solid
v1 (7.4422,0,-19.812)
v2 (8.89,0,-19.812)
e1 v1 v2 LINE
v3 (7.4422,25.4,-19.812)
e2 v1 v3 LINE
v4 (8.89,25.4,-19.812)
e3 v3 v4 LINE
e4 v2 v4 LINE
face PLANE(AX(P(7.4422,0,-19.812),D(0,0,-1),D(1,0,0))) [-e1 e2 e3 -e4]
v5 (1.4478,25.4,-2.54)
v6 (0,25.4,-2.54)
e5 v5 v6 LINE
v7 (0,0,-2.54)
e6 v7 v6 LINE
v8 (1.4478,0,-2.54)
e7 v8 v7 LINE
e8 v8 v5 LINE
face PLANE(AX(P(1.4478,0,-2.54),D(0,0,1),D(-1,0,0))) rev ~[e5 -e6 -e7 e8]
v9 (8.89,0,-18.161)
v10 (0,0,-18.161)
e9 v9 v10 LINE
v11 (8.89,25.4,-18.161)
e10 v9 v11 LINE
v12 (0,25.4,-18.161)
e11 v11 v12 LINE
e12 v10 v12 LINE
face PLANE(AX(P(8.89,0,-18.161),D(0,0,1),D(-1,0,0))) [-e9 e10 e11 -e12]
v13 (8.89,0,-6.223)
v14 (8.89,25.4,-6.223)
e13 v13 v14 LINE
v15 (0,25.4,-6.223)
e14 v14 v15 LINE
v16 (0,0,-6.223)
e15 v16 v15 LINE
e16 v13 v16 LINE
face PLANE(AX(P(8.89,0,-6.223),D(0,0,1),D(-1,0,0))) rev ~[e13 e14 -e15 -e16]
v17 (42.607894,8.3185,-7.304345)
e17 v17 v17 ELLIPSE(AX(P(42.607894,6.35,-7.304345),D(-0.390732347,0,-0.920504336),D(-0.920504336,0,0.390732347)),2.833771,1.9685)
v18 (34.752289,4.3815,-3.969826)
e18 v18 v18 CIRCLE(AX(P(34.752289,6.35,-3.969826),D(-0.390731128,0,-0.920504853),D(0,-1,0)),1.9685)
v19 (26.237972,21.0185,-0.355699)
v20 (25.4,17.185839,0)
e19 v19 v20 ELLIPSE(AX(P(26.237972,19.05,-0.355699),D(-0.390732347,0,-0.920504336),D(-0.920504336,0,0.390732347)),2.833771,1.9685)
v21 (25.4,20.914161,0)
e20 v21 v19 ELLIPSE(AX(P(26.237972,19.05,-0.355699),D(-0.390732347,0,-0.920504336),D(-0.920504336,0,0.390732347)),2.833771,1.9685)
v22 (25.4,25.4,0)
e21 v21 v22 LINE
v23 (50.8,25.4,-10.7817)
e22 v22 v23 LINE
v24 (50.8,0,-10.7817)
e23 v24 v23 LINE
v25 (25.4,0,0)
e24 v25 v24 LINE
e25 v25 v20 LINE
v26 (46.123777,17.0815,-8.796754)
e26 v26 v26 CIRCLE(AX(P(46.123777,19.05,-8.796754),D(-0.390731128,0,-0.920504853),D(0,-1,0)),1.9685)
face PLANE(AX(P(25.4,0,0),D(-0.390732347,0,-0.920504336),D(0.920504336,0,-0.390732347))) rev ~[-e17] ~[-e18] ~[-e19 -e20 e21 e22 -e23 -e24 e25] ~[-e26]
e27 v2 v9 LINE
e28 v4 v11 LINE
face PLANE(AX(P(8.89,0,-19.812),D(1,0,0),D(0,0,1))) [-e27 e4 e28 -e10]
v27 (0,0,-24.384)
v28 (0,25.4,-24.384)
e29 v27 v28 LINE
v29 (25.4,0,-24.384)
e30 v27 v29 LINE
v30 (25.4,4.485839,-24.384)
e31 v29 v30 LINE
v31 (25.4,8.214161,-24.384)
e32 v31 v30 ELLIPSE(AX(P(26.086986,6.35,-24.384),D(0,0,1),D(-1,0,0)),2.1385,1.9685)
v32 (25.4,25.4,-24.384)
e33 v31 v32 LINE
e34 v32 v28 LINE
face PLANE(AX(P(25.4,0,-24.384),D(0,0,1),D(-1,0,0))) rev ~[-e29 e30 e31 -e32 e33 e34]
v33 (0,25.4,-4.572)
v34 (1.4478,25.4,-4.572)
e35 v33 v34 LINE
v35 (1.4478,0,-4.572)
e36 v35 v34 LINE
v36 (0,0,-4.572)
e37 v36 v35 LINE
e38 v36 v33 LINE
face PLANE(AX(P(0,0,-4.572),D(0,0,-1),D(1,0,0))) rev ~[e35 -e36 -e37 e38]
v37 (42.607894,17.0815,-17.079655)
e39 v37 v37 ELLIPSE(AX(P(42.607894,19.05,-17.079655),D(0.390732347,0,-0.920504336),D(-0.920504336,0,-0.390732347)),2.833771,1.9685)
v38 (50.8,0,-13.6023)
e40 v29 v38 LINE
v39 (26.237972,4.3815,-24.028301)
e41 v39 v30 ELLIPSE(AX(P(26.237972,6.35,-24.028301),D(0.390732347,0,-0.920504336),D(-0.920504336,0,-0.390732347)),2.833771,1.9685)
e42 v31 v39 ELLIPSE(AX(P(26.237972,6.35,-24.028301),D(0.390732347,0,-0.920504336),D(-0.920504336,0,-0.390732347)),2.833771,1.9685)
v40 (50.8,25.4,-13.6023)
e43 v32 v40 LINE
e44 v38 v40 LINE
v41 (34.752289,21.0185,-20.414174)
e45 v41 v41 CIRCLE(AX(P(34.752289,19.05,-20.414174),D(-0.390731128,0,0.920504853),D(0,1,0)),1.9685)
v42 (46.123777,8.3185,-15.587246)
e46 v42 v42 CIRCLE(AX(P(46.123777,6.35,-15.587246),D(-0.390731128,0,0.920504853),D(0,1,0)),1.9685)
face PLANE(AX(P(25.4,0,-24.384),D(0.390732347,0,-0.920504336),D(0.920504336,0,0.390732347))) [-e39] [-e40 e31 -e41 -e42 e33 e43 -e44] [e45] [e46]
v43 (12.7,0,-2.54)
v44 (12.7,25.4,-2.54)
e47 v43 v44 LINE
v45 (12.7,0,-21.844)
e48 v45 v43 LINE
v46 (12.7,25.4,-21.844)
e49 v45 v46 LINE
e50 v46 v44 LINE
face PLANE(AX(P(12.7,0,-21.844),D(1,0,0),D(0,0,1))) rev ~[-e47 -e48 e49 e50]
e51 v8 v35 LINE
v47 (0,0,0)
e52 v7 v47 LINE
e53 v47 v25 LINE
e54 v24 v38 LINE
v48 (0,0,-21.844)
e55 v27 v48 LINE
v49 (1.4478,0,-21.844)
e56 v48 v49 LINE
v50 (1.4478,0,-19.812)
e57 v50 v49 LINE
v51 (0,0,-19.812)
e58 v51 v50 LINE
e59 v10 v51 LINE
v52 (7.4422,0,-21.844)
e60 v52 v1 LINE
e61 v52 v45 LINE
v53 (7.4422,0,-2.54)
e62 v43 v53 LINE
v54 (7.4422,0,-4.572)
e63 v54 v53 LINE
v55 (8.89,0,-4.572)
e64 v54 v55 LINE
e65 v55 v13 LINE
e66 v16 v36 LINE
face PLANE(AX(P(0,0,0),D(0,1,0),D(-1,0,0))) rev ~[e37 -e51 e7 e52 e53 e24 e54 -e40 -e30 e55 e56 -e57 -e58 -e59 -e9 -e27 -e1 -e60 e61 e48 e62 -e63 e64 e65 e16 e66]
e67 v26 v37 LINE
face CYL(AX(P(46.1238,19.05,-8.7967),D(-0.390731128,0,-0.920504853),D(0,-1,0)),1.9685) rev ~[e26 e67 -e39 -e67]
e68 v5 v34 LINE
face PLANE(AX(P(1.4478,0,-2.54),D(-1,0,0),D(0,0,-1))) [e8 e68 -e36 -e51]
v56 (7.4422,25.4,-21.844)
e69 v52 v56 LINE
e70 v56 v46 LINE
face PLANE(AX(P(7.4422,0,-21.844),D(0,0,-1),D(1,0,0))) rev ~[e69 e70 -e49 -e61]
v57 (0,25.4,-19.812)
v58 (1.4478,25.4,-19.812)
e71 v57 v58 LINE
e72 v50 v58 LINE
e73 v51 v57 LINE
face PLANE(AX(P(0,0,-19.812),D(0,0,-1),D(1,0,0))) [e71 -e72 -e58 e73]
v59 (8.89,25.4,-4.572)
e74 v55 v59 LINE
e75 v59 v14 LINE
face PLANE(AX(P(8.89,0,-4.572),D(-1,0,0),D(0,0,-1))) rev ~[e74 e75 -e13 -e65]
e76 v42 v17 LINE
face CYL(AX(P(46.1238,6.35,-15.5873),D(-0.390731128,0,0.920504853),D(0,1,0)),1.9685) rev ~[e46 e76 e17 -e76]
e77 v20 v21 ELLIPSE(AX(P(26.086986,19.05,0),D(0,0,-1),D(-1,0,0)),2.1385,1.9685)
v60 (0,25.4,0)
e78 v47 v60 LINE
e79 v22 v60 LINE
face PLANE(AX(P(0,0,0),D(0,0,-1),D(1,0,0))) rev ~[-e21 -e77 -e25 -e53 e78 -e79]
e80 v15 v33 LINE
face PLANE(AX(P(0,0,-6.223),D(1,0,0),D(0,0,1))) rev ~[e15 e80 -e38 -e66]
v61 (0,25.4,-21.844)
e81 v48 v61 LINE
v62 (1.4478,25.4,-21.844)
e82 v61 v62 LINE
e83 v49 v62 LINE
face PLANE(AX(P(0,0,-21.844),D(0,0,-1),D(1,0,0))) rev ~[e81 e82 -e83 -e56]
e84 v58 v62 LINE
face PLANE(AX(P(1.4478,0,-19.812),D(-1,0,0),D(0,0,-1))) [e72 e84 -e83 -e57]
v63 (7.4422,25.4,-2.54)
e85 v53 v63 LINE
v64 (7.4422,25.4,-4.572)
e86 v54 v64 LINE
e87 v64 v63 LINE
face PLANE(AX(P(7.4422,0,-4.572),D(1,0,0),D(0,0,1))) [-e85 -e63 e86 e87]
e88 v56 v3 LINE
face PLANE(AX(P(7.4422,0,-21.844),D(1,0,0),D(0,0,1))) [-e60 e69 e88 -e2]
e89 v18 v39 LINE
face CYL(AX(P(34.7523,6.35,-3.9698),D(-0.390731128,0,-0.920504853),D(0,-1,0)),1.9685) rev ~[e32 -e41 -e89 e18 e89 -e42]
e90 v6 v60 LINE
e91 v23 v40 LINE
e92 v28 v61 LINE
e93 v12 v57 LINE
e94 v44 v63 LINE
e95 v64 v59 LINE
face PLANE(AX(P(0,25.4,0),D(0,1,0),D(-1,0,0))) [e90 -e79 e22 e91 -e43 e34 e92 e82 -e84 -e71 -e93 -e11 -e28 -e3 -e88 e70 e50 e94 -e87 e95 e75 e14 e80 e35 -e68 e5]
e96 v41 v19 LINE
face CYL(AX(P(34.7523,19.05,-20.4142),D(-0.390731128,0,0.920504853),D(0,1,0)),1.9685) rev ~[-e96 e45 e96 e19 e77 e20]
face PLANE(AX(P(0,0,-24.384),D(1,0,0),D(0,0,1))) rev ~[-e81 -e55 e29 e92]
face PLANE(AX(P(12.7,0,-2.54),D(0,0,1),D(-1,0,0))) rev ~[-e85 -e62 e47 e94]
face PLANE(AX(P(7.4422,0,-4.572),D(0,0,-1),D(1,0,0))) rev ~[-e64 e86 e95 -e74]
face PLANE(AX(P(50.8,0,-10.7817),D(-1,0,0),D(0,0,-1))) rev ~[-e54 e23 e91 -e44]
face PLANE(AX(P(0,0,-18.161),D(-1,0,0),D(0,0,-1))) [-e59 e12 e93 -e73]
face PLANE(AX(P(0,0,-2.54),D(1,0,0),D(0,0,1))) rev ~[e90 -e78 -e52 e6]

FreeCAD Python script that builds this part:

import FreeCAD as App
import Part
import Sketcher
Q = App.Units.Quantity

doc = App.newDocument("Part")
body = doc.addObject("PartDesign::Body", "Body")

# Sketch on XZ plane
sketch1 = doc.addObject("Sketcher::SketchObject", "Sketch")
body.addObject(sketch1)
sketch1.AttachmentSupport = (doc.XZ_Plane, [""])
sketch1.MapMode = "FlatFace"
sketch1.addGeometry([
    Part.LineSegment(App.Vector(0, -2.5, 0), App.Vector(0, 0, 0)),  # 0
    Part.LineSegment(App.Vector(0, 0, 0), App.Vector(25.4, 0, 0)),  # 1
    Part.LineSegment(App.Vector(25.4, 0, 0), App.Vector(50.8, -10.8, 0)),  # 2
    Part.LineSegment(App.Vector(50.8, -10.8, 0), App.Vector(50.8, -13.6, 0)),  # 3
    Part.LineSegment(App.Vector(50.8, -13.6, 0), App.Vector(25.4, -24.4, 0)),  # 4
    Part.LineSegment(App.Vector(25.4, -24.4, 0), App.Vector(0, -24.4, 0)),  # 5
    Part.LineSegment(App.Vector(0, -24.4, 0), App.Vector(0, -21.8, 0)),  # 6
    Part.LineSegment(App.Vector(0, -21.8, 0), App.Vector(1.4, -21.8, 0)),  # 7
    Part.LineSegment(App.Vector(1.4, -21.8, 0), App.Vector(1.4, -19.8, 0)),  # 8
    Part.LineSegment(App.Vector(1.4, -19.8, 0), App.Vector(0, -19.8, 0)),  # 9
    Part.LineSegment(App.Vector(0, -19.8, 0), App.Vector(0, -18.2, 0)),  # 10
    Part.LineSegment(App.Vector(0, -18.2, 0), App.Vector(8.9, -18.2, 0)),  # 11
    Part.LineSegment(App.Vector(8.9, -18.2, 0), App.Vector(8.9, -19.8, 0)),  # 12
    Part.LineSegment(App.Vector(8.9, -19.8, 0), App.Vector(7.4, -19.8, 0)),  # 13
    Part.LineSegment(App.Vector(7.4, -19.8, 0), App.Vector(7.4, -21.8, 0)),  # 14
    Part.LineSegment(App.Vector(7.4, -21.8, 0), App.Vector(12.7, -21.8, 0)),  # 15
    Part.LineSegment(App.Vector(12.7, -21.8, 0), App.Vector(12.7, -2.5, 0)),  # 16
    Part.LineSegment(App.Vector(12.7, -2.5, 0), App.Vector(7.4, -2.5, 0)),  # 17
    Part.LineSegment(App.Vector(7.4, -2.5, 0), App.Vector(7.4, -4.6, 0)),  # 18
    Part.LineSegment(App.Vector(7.4, -4.6, 0), App.Vector(8.9, -4.6, 0)),  # 19
    Part.LineSegment(App.Vector(8.9, -4.6, 0), App.Vector(8.9, -6.2, 0)),  # 20
    Part.LineSegment(App.Vector(8.9, -6.2, 0), App.Vector(0, -6.2, 0)),  # 21
    Part.LineSegment(App.Vector(0, -6.2, 0), App.Vector(0, -4.6, 0)),  # 22
    Part.LineSegment(App.Vector(0, -4.6, 0), App.Vector(1.4, -4.6, 0)),  # 23
    Part.LineSegment(App.Vector(1.4, -4.6, 0), App.Vector(1.4, -2.5, 0)),  # 24
    Part.LineSegment(App.Vector(1.4, -2.5, 0), App.Vector(0, -2.5, 0)),  # 25
], False)
sketch1.addConstraint([
    Sketcher.Constraint("Coincident", 0, 2, 1, 1),
    Sketcher.Constraint("Coincident", 1, 2, 2, 1),
    Sketcher.Constraint("Coincident", 2, 2, 3, 1),
    Sketcher.Constraint("Coincident", 3, 2, 4, 1),
    Sketcher.Constraint("Coincident", 4, 2, 5, 1),
    Sketcher.Constraint("Coincident", 5, 2, 6, 1),
    Sketcher.Constraint("Coincident", 6, 2, 7, 1),
    Sketcher.Constraint("Coincident", 7, 2, 8, 1),
    Sketcher.Constraint("Coincident", 8, 2, 9, 1),
    Sketcher.Constraint("Coincident", 9, 2, 10, 1),
    Sketcher.Constraint("Coincident", 10, 2, 11, 1),
    Sketcher.Constraint("Coincident", 11, 2, 12, 1),
    Sketcher.Constraint("Coincident", 12, 2, 13, 1),
    Sketcher.Constraint("Coincident", 13, 2, 14, 1),
    Sketcher.Constraint("Coincident", 14, 2, 15, 1),
    Sketcher.Constraint("Coincident", 15, 2, 16, 1),
    Sketcher.Constraint("Coincident", 16, 2, 17, 1),
    Sketcher.Constraint("Coincident", 17, 2, 18, 1),
    Sketcher.Constraint("Coincident", 18, 2, 19, 1),
    Sketcher.Constraint("Coincident", 19, 2, 20, 1),
    Sketcher.Constraint("Coincident", 20, 2, 21, 1),
    Sketcher.Constraint("Coincident", 21, 2, 22, 1),
    Sketcher.Constraint("Coincident", 22, 2, 23, 1),
    Sketcher.Constraint("Coincident", 23, 2, 24, 1),
    Sketcher.Constraint("Coincident", 24, 2, 25, 1),
    Sketcher.Constraint("Coincident", 25, 2, 0, 1),
    Sketcher.Constraint("Vertical", 0),
    Sketcher.Constraint("Horizontal", 1),
    Sketcher.Constraint("Vertical", 3),
    Sketcher.Constraint("Horizontal", 5),
    Sketcher.Constraint("Vertical", 6),
    Sketcher.Constraint("Horizontal", 7),
    Sketcher.Constraint("Vertical", 8),
    Sketcher.Constraint("Horizontal", 9),
    Sketcher.Constraint("Vertical", 10),
    Sketcher.Constraint("Horizontal", 11),
    Sketcher.Constraint("Vertical", 12),
    Sketcher.Constraint("Horizontal", 13),
    Sketcher.Constraint("Vertical", 14),
    Sketcher.Constraint("Horizontal", 15),
    Sketcher.Constraint("Vertical", 16),
    Sketcher.Constraint("Horizontal", 17),
    Sketcher.Constraint("Vertical", 18),
    Sketcher.Constraint("Horizontal", 19),
    Sketcher.Constraint("Vertical", 20),
    Sketcher.Constraint("Horizontal", 21),
    Sketcher.Constraint("Vertical", 22),
    Sketcher.Constraint("Horizontal", 23),
    Sketcher.Constraint("Vertical", 24),
    Sketcher.Constraint("Horizontal", 25),
    Sketcher.Constraint("Coincident", 0, 2, -1, 1),
    Sketcher.Constraint("PointOnObject", 5, 2, -2),
    Sketcher.Constraint("PointOnObject", 9, 2, -2),
    Sketcher.Constraint("PointOnObject", 21, 2, -2),
    Sketcher.Constraint("Horizontal", 9, 2, 12, 2),
    Sketcher.Constraint("Horizontal", 7, 2, 14, 2),
    Sketcher.Constraint("Horizontal", 19, 2, 22, 2),
    Sketcher.Constraint("Horizontal", 17, 2, 24, 2),
    Sketcher.Constraint("Vertical", 1, 2, 4, 2),
    Sketcher.Constraint("Vertical", 14, 2, 17, 2),
    Sketcher.Constraint("Vertical", 12, 2, 19, 2),
    Sketcher.Constraint("Vertical", 8, 2, 23, 2),
    Sketcher.Constraint("Equal", 9, 13),
    Sketcher.Constraint("Equal", 0, 6),
    Sketcher.Constraint("Equal", 14, 18),
    Sketcher.Constraint("Equal", 12, 20),
    Sketcher.Constraint("Equal", 2, 4),
    Sketcher.Constraint("DistanceX", 1, 1, 1, 2, Q("1 in")),
    Sketcher.Constraint("DistanceY", 0, 1, 0, 2, Q("0.1 in")),
    Sketcher.Constraint("Angle", 4, Q("-157 deg")),
    Sketcher.Constraint("DistanceX", 1, 2, 2, 2, Q("1 in")),
    Sketcher.Constraint("DistanceX", 11, 1, 11, 2, Q("0.35 in")),
    Sketcher.Constraint("DistanceY", 8, 1, 8, 2, Q("0.08 in")),
    Sketcher.Constraint("DistanceX", -1, 1, 15, 2, Q("0.5 in")),
    Sketcher.Constraint("DistanceX", 7, 1, 7, 2, Q("0.057 in")),
    Sketcher.Constraint("DistanceY", 10, 1, 10, 2, Q("0.065 in")),
    Sketcher.Constraint("DistanceY", 4, 2, -1, 1, Q("0.96 in")),
])
pad1 = doc.addObject("PartDesign::Pad", "Pad")
body.addObject(pad1)
pad1.Profile = sketch1
pad1.Length = Q("1 in")
pad1.Reversed = True

# Sketch on an angled plane
sketch2 = doc.addObject("Sketcher::SketchObject", "Sketch001")
body.addObject(sketch2)
sketch2.Placement = App.Placement(App.Vector(12.648035, 0, -29.796904), App.Rotation(App.Vector(-0.920504853, 0, -0.390731128), App.Vector(0, 0.999999999, 0), App.Vector(0.390731128, 0, -0.920504853), "ZXY"))
sketch2.addGeometry([
    Part.Circle(App.Vector(-24, 19, 0), App.Vector(0, 0, 1), 2),
    Part.Circle(App.Vector(-36.4, 6.3, 0), App.Vector(0, 0, 1), 2),
], False)
sketch2.addConstraint([
    Sketcher.Constraint("Equal", 0, 1),
    Sketcher.Constraint("Diameter", 0, Q("0.155 in")),
    Sketcher.Constraint("DistanceY", 1, 3, 0, 3, Q("0.5 in")),
    Sketcher.Constraint("DistanceY", -1, 1, 0, 3, Q("0.75 in")),
    Sketcher.Constraint("DistanceX", 0, 3, -1, 1, Q("0.9454 in")),
    Sketcher.Constraint("DistanceX", 1, 3, -1, 1, 36.3667),
])
doc.recompute()
hole = doc.addObject("PartDesign::Hole", "Hole")
body.addObject(hole)
hole.Profile = sketch2
hole.ThreadType = "None"
hole.Diameter = Q("0.155 in")
hole.DepthType = "ThroughAll"

# Sketch on an angled plane
sketch3 = doc.addObject("Sketcher::SketchObject", "Sketch002")
body.addObject(sketch3)
sketch3.Placement = App.Placement(App.Vector(3.87785, 0, 9.135642), App.Rotation(App.Vector(0.920504853, 0, -0.390731128), App.Vector(0, 0.999999999, 0), App.Vector(0.390731128, 0, 0.920504853), "ZXY"))
sketch3.addGeometry([
    Part.Circle(App.Vector(45.9, 19, 0), App.Vector(0, 0, 1), 2),
    Part.Circle(App.Vector(33.5, 6.3, 0), App.Vector(0, 0, 1), 2),
], False)
sketch3.addConstraint([
    Sketcher.Constraint("Equal", 0, 1),
    Sketcher.Constraint("Diameter", 0, Q("0.155 in")),
    Sketcher.Constraint("DistanceY", 1, 3, 0, 3, Q("0.5 in")),
    Sketcher.Constraint("DistanceY", -1, 1, 0, 3, Q("0.75 in")),
    Sketcher.Constraint("DistanceX", -1, 1, 1, 3, Q("1.3205 in")),
    Sketcher.Constraint("DistanceX", -1, 1, 0, 3, 45.8943),
])
doc.recompute()
hole2 = doc.addObject("PartDesign::Hole", "Hole001")
body.addObject(hole2)
hole2.Profile = sketch3
hole2.ThreadType = "None"
hole2.Diameter = Q("0.155 in")
hole2.DepthType = "ThroughAll"

doc.recompute()
